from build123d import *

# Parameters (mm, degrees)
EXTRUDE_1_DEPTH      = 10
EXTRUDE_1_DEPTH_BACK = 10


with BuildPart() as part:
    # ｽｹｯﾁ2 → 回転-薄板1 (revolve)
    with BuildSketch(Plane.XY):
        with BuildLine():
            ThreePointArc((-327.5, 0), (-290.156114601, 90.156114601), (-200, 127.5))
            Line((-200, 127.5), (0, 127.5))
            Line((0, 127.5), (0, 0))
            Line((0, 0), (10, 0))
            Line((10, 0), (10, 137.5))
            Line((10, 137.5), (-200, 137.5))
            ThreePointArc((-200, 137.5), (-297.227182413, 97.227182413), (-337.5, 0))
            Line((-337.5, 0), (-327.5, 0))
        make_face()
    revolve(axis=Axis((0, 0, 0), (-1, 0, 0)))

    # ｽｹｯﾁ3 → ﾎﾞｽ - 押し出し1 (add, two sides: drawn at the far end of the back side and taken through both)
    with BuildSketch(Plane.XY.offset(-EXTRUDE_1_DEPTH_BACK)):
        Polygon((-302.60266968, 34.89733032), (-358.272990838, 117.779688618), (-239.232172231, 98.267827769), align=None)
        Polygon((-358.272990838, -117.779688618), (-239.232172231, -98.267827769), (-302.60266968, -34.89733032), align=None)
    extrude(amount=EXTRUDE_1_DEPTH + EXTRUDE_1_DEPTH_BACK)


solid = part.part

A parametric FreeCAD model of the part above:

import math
import FreeCAD as App
import Part
import Sketcher
Q = App.Units.Quantity


def add_polygon(sketch, points):
    """Adds a closed chain of lines whose ends are joined by coincident constraints."""
    first, n = sketch.GeometryCount, len(points)
    for a, b in zip(points, points[1:] + points[:1]):
        sketch.addGeometry(Part.LineSegment(App.Vector(*a, 0), App.Vector(*b, 0)), False)
    for i in range(n):
        sketch.addConstraint(Sketcher.Constraint("Coincident", first + i, 2, first + (i + 1) % n, 1))

doc = App.newDocument("Part")
body = doc.addObject("PartDesign::Body", "Body")

sketch1 = doc.addObject("Sketcher::SketchObject", "Sketch")
body.addObject(sketch1)
sketch1.AttachmentSupport = (doc.XY_Plane, [""])
sketch1.MapMode = "FlatFace"
sketch1.addGeometry([
    Part.ArcOfCircle(Part.Circle(App.Vector(-200, 0, 0), App.Vector(0, 0, 1), 128), math.radians(90), math.radians(180)),
    Part.LineSegment(App.Vector(-200, 128, 0), App.Vector(0, 128, 0)),
    Part.LineSegment(App.Vector(0, 128, 0), App.Vector(0, 0, 0)),
    Part.LineSegment(App.Vector(0, 0, 0), App.Vector(10, 0, 0)),
    Part.LineSegment(App.Vector(10, 0, 0), App.Vector(10, 138, 0)),
    Part.LineSegment(App.Vector(10, 138, 0), App.Vector(-200, 138, 0)),
    Part.ArcOfCircle(Part.Circle(App.Vector(-200, 0, 0), App.Vector(0, 0, 1), 138), math.radians(90), math.radians(180)),
    Part.LineSegment(App.Vector(-338, 0, 0), App.Vector(-328, 0, 0)),
], False)
sketch1.addConstraint([
    Sketcher.Constraint("Tangent", 0, 1, 1, 1),
    Sketcher.Constraint("Coincident", 1, 2, 2, 1),
    Sketcher.Constraint("Coincident", 2, 2, 3, 1),
    Sketcher.Constraint("Coincident", 3, 2, 4, 1),
    Sketcher.Constraint("Coincident", 4, 2, 5, 1),
    Sketcher.Constraint("Tangent", 5, 2, 6, 1),
    Sketcher.Constraint("Coincident", 6, 2, 7, 1),
    Sketcher.Constraint("Coincident", 7, 2, 0, 2),
    Sketcher.Constraint("Horizontal", 1),
    Sketcher.Constraint("Vertical", 2),
    Sketcher.Constraint("Horizontal", 3),
    Sketcher.Constraint("Vertical", 4),
    Sketcher.Constraint("Horizontal", 5),
    Sketcher.Constraint("Horizontal", 7),
    Sketcher.Constraint("Coincident", 2, 2, -1, 1),
    Sketcher.Constraint("Coincident", 6, 3, 0, 3),
    Sketcher.Constraint("PointOnObject", 0, 3, -1),
    Sketcher.Constraint("PointOnObject", 6, 2, -1),
    Sketcher.Constraint("Equal", 3, 7),
    Sketcher.Constraint("Radius", 0, Q("127.5 mm")),
    Sketcher.Constraint("Radius", 6, Q("137.5 mm")),
    Sketcher.Constraint("DistanceX", 1, 1, 1, 2, Q("200 mm")),
])
revolution = doc.addObject("PartDesign::Revolution", "Revolution")
body.addObject(revolution)
revolution.Profile = sketch1
revolution.ReferenceAxis = (sketch1, ["H_Axis"])
revolution.Angle = 360

sketch2 = doc.addObject("Sketcher::SketchObject", "Sketch001")
body.addObject(sketch2)
sketch2.AttachmentSupport = (doc.XY_Plane, [""])
sketch2.MapMode = "FlatFace"
add_polygon(sketch2, [(-358, 118), (-303, 35), (-239, 98)])
add_polygon(sketch2, [(-358, -118), (-239, -98), (-303, -35)])
sketch2.addConstraint([
    Sketcher.Constraint("Symmetric", 1, 2, 3, 2, -1),
    Sketcher.Constraint("Symmetric", 0, 2, 4, 2, -1),
    Sketcher.Constraint("Symmetric", 2, 2, 5, 2, -1),
    Sketcher.Constraint("Perpendicular", 1, 4),
    Sketcher.Constraint("DistanceX", 0, 2, -1, 1, Q("302.60267 mm")),
    Sketcher.Constraint("DistanceY", -1, 1, 0, 2, Q("34.89733 mm")),
    Sketcher.Constraint("DistanceX", 2, 2, -1, 1, Q("358.272991 mm")),
    Sketcher.Constraint("DistanceY", -1, 1, 2, 2, Q("117.779689 mm")),
    Sketcher.Constraint("DistanceX", 2, 2, 1, 2, Q("119.040819 mm")),
])
pad1 = doc.addObject("PartDesign::Pad", "Pad")
body.addObject(pad1)
pad1.Profile = sketch2
pad1.Type = "TwoLengths"
pad1.Length = 10
pad1.Length2 = 10

doc.recompute()
